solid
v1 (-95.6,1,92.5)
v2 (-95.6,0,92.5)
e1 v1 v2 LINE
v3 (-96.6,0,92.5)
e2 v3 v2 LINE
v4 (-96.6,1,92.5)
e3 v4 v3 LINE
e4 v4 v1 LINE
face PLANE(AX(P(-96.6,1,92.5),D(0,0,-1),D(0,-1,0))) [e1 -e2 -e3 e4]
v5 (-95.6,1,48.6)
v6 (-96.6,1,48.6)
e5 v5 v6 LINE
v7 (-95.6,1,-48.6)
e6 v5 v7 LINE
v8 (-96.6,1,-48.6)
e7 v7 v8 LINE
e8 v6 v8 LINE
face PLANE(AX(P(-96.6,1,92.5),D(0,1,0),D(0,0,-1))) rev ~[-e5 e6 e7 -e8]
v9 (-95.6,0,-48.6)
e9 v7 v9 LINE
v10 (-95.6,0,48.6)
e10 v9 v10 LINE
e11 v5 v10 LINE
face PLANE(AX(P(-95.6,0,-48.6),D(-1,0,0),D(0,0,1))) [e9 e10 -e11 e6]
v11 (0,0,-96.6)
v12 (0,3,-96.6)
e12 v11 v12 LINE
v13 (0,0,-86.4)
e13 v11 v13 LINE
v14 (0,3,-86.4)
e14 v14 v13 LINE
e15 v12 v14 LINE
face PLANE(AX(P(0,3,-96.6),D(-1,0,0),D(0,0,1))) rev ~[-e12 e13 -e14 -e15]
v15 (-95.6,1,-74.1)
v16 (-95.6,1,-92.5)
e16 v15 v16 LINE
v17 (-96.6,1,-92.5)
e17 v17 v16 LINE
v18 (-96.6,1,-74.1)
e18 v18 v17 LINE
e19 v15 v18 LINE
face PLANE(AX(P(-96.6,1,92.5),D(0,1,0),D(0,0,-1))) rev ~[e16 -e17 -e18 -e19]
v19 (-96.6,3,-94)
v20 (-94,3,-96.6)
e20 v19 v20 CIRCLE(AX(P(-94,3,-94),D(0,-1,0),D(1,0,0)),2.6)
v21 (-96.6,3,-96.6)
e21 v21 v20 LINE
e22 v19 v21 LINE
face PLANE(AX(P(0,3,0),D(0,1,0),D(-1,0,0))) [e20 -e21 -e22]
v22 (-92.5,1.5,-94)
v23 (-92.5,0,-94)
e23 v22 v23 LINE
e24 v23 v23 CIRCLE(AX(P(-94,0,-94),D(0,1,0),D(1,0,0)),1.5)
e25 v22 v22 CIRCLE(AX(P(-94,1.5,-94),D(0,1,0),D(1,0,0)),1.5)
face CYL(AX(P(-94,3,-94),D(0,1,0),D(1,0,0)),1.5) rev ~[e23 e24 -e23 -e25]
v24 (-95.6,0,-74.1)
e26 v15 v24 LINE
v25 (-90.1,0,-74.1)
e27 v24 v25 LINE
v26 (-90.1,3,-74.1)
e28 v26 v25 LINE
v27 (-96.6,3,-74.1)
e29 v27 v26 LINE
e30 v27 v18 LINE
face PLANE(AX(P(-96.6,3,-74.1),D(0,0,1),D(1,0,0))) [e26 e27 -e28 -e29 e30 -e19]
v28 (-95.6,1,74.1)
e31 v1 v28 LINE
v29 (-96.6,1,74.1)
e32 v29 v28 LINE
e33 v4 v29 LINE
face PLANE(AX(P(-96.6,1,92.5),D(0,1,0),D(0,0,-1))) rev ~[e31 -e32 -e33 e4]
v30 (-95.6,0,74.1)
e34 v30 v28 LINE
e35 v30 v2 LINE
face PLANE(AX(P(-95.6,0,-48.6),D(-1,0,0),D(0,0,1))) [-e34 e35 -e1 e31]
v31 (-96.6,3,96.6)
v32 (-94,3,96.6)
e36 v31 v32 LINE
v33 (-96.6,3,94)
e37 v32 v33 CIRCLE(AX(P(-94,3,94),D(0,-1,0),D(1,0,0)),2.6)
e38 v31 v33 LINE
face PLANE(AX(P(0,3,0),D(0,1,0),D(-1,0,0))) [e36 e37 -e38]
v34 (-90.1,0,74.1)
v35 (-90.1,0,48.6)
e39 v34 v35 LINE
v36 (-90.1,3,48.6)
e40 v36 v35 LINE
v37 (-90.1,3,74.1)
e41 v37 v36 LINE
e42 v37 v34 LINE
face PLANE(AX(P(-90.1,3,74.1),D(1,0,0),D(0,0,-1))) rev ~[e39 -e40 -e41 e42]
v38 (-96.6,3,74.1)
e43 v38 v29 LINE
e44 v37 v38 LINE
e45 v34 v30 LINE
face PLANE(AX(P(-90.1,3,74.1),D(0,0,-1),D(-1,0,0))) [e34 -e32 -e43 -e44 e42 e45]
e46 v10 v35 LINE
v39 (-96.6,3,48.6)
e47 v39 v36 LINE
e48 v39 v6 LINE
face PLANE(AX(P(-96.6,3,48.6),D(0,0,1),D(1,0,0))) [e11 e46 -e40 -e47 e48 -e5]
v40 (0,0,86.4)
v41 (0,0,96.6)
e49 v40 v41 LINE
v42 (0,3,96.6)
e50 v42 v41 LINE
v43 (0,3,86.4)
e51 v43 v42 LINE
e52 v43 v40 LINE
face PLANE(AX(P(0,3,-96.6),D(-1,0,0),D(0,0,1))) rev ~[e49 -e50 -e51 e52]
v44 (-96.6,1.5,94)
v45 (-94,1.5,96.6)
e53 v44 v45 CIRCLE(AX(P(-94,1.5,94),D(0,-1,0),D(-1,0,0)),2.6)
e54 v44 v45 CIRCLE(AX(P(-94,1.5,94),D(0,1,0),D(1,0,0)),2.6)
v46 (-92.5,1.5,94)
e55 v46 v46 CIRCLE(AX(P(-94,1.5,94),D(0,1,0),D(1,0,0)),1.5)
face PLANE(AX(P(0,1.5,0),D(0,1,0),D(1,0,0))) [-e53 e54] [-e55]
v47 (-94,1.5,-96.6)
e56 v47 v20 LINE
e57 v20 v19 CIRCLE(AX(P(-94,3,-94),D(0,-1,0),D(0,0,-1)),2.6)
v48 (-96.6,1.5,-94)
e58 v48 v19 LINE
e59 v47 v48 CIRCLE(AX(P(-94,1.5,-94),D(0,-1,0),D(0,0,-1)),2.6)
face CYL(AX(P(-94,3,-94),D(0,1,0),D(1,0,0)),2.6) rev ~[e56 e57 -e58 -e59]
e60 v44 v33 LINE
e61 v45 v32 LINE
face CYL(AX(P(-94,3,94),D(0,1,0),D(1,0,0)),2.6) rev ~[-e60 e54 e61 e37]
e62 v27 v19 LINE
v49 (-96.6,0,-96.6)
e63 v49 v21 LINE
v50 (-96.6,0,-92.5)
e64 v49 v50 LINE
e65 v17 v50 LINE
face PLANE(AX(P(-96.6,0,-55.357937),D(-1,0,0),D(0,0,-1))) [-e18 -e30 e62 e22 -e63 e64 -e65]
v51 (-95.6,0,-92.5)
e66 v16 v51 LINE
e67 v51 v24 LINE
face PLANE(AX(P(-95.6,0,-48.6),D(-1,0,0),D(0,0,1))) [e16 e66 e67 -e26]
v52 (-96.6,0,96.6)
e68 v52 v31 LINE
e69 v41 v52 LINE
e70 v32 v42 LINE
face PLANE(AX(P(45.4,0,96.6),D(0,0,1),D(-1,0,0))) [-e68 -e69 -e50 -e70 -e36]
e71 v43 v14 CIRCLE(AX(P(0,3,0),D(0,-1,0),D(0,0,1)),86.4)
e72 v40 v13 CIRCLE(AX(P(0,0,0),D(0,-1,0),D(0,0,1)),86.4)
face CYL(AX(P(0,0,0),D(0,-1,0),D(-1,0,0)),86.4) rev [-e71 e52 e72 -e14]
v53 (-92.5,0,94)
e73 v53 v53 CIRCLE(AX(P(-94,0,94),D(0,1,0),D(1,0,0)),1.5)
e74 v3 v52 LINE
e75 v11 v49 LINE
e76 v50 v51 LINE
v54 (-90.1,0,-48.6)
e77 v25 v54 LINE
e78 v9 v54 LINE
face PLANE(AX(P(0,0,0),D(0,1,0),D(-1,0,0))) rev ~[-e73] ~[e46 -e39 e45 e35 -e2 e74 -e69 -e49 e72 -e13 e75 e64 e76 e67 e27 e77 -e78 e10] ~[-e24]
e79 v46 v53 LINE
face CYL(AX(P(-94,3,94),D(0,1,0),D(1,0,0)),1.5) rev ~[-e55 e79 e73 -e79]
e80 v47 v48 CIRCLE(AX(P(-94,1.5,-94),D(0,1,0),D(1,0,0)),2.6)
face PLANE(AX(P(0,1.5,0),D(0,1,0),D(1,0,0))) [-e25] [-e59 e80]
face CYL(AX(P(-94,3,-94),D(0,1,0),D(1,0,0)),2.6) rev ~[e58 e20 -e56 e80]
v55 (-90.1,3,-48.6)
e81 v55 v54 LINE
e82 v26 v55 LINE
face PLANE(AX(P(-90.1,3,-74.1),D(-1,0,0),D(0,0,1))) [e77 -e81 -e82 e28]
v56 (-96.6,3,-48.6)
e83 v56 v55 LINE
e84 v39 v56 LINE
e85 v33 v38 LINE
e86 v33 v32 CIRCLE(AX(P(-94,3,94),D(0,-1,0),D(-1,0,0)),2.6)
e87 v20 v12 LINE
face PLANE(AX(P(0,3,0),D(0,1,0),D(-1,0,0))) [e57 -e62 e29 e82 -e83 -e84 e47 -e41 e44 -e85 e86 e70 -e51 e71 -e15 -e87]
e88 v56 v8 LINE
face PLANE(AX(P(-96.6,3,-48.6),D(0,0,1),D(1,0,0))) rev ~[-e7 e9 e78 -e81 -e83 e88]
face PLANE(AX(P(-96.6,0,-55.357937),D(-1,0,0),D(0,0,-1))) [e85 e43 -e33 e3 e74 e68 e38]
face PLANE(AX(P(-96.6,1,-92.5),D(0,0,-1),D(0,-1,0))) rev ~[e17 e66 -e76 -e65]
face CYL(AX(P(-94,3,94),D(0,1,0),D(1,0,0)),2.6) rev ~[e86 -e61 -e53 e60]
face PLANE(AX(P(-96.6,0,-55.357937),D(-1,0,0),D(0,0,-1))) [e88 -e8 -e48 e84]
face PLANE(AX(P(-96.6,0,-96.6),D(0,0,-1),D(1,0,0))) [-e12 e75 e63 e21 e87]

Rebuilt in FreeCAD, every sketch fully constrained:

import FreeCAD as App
import Part
import Sketcher
from FreeCAD import Vector


def edges_at(feature, points):
    """Names of the edges that pass closest to the given points."""
    edges = feature.Shape.Edges
    near = lambda p: min(range(len(edges)), key=lambda i: edges[i].distToShape(Part.Vertex(*p))[0])
    return sorted({f"Edge{near(p) + 1}" for p in points})

doc = App.newDocument("Part")
body = doc.addObject("PartDesign::Body", "Body")

# Sketch on XZ plane
sketch1 = body.newObject("Sketcher::SketchObject", "Sketch")
sketch1.AttachmentSupport = (doc.getObject("XZ_Plane"), [""])
sketch1.MapMode = "FlatFace"
sketch1.addGeometry(Part.LineSegment(Vector(-97, -97, 0), Vector(-97, 97, 0)), False)
sketch1.addGeometry(Part.LineSegment(Vector(-97, 97, 0), Vector(45, 97, 0)), False)
sketch1.addGeometry(Part.LineSegment(Vector(45, 97, 0), Vector(97, 45, 0)), False)
sketch1.addGeometry(Part.LineSegment(Vector(97, 45, 0), Vector(97, -97, 0)), False)
sketch1.addGeometry(Part.LineSegment(Vector(97, -97, 0), Vector(-97, -97, 0)), False)
sketch1.addGeometry(Part.Circle(Vector(0, 0, 0), Vector(0, 0, 1), 86), False)
sketch1.addConstraint(Sketcher.Constraint("Coincident", 0, 2, 1, 1))
sketch1.addConstraint(Sketcher.Constraint("Coincident", 1, 2, 2, 1))
sketch1.addConstraint(Sketcher.Constraint("Coincident", 2, 2, 3, 1))
sketch1.addConstraint(Sketcher.Constraint("Coincident", 3, 2, 4, 1))
sketch1.addConstraint(Sketcher.Constraint("Coincident", 4, 2, 0, 1))
sketch1.addConstraint(Sketcher.Constraint("Vertical", 0))
sketch1.addConstraint(Sketcher.Constraint("Horizontal", 1))
sketch1.addConstraint(Sketcher.Constraint("Vertical", 3))
sketch1.addConstraint(Sketcher.Constraint("Horizontal", 4))
sketch1.addConstraint(Sketcher.Constraint("Coincident", 5, 3, -1, 1))
sketch1.addConstraint(Sketcher.Constraint("Symmetric", 0, 2, 3, 2, -1, 1))
sketch1.addConstraint(Sketcher.Constraint("Equal", 4, 0))
sketch1.addConstraint(Sketcher.Constraint("Equal", 1, 3))
sketch1.addConstraint(Sketcher.Constraint("Diameter", 5, 172.8))
sketch1.addConstraint(Sketcher.Constraint("DistanceX", 1, 1, 1, 2, 142.0))
sketch1.addConstraint(Sketcher.Constraint("DistanceX", 4, 2, 4, 1, 193.2))
pad1 = body.newObject("PartDesign::Pad", "Pad")
pad1.Profile = sketch1
pad1.Length = 3
pad1.Reversed = True

# Sketch on XZ plane
sketch2 = body.newObject("Sketcher::SketchObject", "Sketch001")
sketch2.AttachmentSupport = (doc.getObject("XZ_Plane"), [""])
sketch2.MapMode = "FlatFace"
sketch2.AttachmentOffset = App.Placement(Vector(0, 0, -3), App.Rotation())
sketch2.addGeometry(Part.LineSegment(Vector(89, -10, 0), Vector(89, 10, 0)), False)
sketch2.addGeometry(Part.LineSegment(Vector(89, 10, 0), Vector(97, 10, 0)), False)
sketch2.addGeometry(Part.LineSegment(Vector(97, 10, 0), Vector(97, -10, 0)), False)
sketch2.addGeometry(Part.LineSegment(Vector(97, -10, 0), Vector(89, -10, 0)), False)
sketch2.addConstraint(Sketcher.Constraint("Coincident", 0, 2, 1, 1))
sketch2.addConstraint(Sketcher.Constraint("Coincident", 1, 2, 2, 1))
sketch2.addConstraint(Sketcher.Constraint("Coincident", 2, 2, 3, 1))
sketch2.addConstraint(Sketcher.Constraint("Coincident", 3, 2, 0, 1))
sketch2.addConstraint(Sketcher.Constraint("Vertical", 0))
sketch2.addConstraint(Sketcher.Constraint("Horizontal", 1))
sketch2.addConstraint(Sketcher.Constraint("Vertical", 2))
sketch2.addConstraint(Sketcher.Constraint("Horizontal", 3))
sketch2.addConstraint(Sketcher.Constraint("DistanceX", 1, 1, 1, 2, 7.5))
sketch2.addConstraint(Sketcher.Constraint("DistanceY", -1, 1, 0, 2, 10.0))
sketch2.addConstraint(Sketcher.Constraint("DistanceY", 2, 2, -1, 1, 10.0))
sketch2.addConstraint(Sketcher.Constraint("DistanceX", -1, 1, 0, 2, 89.1))
pad2 = body.newObject("PartDesign::Pad", "Pad001")
pad2.Profile = sketch2
pad2.Length = 15
pad2.Reversed = True

# Sketch on XY plane
sketch3 = body.newObject("Sketcher::SketchObject", "Sketch002")
sketch3.AttachmentSupport = (doc.getObject("XY_Plane"), [""])
sketch3.MapMode = "FlatFace"
sketch3.AttachmentOffset = App.Placement(Vector(0, 0, 10), App.Rotation())
sketch3.addGeometry(Part.LineSegment(Vector(94.6, 13, 0), Vector(91.1, 13, 0)), False)
sketch3.addGeometry(Part.LineSegment(Vector(91.1, 13, 0), Vector(91.1, 6, 0)), False)
sketch3.addGeometry(Part.LineSegment(Vector(91.1, 6, 0), Vector(94.6, 6, 0)), False)
sketch3.addGeometry(Part.LineSegment(Vector(94.6, 6, 0), Vector(94.6, 13, 0)), False)
sketch3.addConstraint(Sketcher.Constraint("Coincident", 0, 2, 1, 1))
sketch3.addConstraint(Sketcher.Constraint("Coincident", 1, 2, 2, 1))
sketch3.addConstraint(Sketcher.Constraint("Coincident", 2, 2, 3, 1))
sketch3.addConstraint(Sketcher.Constraint("Coincident", 3, 2, 0, 1))
sketch3.addConstraint(Sketcher.Constraint("Horizontal", 0))
sketch3.addConstraint(Sketcher.Constraint("Vertical", 1))
sketch3.addConstraint(Sketcher.Constraint("Horizontal", 2))
sketch3.addConstraint(Sketcher.Constraint("Vertical", 3))
sketch3.addConstraint(Sketcher.Constraint("DistanceY", 1, 2, 1, 1, 7.0))
sketch3.addConstraint(Sketcher.Constraint("DistanceX", 0, 2, 0, 1, 3.5))
sketch3.addConstraint(Sketcher.Constraint("DistanceY", -1, 1, 0, 2, 13.0))
sketch3.addConstraint(Sketcher.Constraint("DistanceX", -1, 1, 0, 2, 91.1))
pocket1 = body.newObject("PartDesign::Pocket", "Pocket")
pocket1.Profile = sketch3
pocket1.Type = "ThroughAll"
doc.recompute()

fillet = body.newObject("PartDesign::Fillet", "Fillet")
fillet.Base = (pocket1, edges_at(pocket1, [(96.6, 18, 0), (89.1, 18, 0)]))
fillet.Radius = 3.175

# Sketch on XZ plane
sketch4 = body.newObject("Sketcher::SketchObject", "Sketch003")
sketch4.AttachmentSupport = (doc.getObject("XZ_Plane"), [""])
sketch4.MapMode = "FlatFace"
sketch4.AttachmentOffset = App.Placement(Vector(0, 0, -3), App.Rotation())
sketch4.addGeometry(Part.LineSegment(Vector(-90, -74, 0), Vector(-97, -74, 0)), False)
sketch4.addGeometry(Part.LineSegment(Vector(-97, -74, 0), Vector(-97, -49, 0)), False)
sketch4.addGeometry(Part.LineSegment(Vector(-97, -49, 0), Vector(-90, -49, 0)), False)
sketch4.addGeometry(Part.LineSegment(Vector(-90, -49, 0), Vector(-90, -74, 0)), False)
sketch4.addGeometry(Part.LineSegment(Vector(-90, 49, 0), Vector(-97, 49, 0)), False)
sketch4.addGeometry(Part.LineSegment(Vector(-97, 49, 0), Vector(-97, 74, 0)), False)
sketch4.addGeometry(Part.LineSegment(Vector(-97, 74, 0), Vector(-90, 74, 0)), False)
sketch4.addGeometry(Part.LineSegment(Vector(-90, 74, 0), Vector(-90, 49, 0)), False)
sketch4.addConstraint(Sketcher.Constraint("Coincident", 0, 2, 1, 1))
sketch4.addConstraint(Sketcher.Constraint("Coincident", 1, 2, 2, 1))
sketch4.addConstraint(Sketcher.Constraint("Coincident", 2, 2, 3, 1))
sketch4.addConstraint(Sketcher.Constraint("Coincident", 3, 2, 0, 1))
sketch4.addConstraint(Sketcher.Constraint("Coincident", 4, 2, 5, 1))
sketch4.addConstraint(Sketcher.Constraint("Coincident", 5, 2, 6, 1))
sketch4.addConstraint(Sketcher.Constraint("Coincident", 6, 2, 7, 1))
sketch4.addConstraint(Sketcher.Constraint("Coincident", 7, 2, 4, 1))
sketch4.addConstraint(Sketcher.Constraint("Horizontal", 0))
sketch4.addConstraint(Sketcher.Constraint("Vertical", 1))
sketch4.addConstraint(Sketcher.Constraint("Horizontal", 2))
sketch4.addConstraint(Sketcher.Constraint("Vertical", 3))
sketch4.addConstraint(Sketcher.Constraint("Horizontal", 4))
sketch4.addConstraint(Sketcher.Constraint("Vertical", 5))
sketch4.addConstraint(Sketcher.Constraint("Horizontal", 6))
sketch4.addConstraint(Sketcher.Constraint("Vertical", 7))
sketch4.addConstraint(Sketcher.Constraint("Symmetric", 1, 2, 4, 2, -1))
sketch4.addConstraint(Sketcher.Constraint("Symmetric", 3, 2, 6, 2, -1))
sketch4.addConstraint(Sketcher.Constraint("DistanceX", 0, 2, 0, 1, 6.5))
sketch4.addConstraint(Sketcher.Constraint("DistanceY", 1, 1, 1, 2, 25.5))
sketch4.addConstraint(Sketcher.Constraint("DistanceX", 0, 2, -1, 1, 96.6))
sketch4.addConstraint(Sketcher.Constraint("DistanceY", 0, 2, -1, 1, 74.1))
pocket2 = body.newObject("PartDesign::Pocket", "Pocket001")
pocket2.Profile = sketch4
pocket2.Type = "ThroughAll"
pocket2.Reversed = True

# Sketch on XZ plane
sketch5 = body.newObject("Sketcher::SketchObject", "Sketch004")
sketch5.AttachmentSupport = (doc.getObject("XZ_Plane"), [""])
sketch5.MapMode = "FlatFace"
sketch5.AttachmentOffset = App.Placement(Vector(0, 0, -3), App.Rotation())
sketch5.addGeometry(Part.Circle(Vector(-94, -94, 0), Vector(0, 0, 1), 1.5), False)
sketch5.addGeometry(Part.Circle(Vector(94, -94, 0), Vector(0, 0, 1), 1.5), False)
sketch5.addGeometry(Part.Circle(Vector(-94, 94, 0), Vector(0, 0, 1), 1.5), False)
sketch5.addGeometry(Part.Circle(Vector(94, 39.1, 0), Vector(0, 0, 1), 1.5), False)
sketch5.addConstraint(Sketcher.Constraint("Equal", 0, 1))
sketch5.addConstraint(Sketcher.Constraint("Equal", 1, 2))
sketch5.addConstraint(Sketcher.Constraint("Equal", 2, 3))
sketch5.addConstraint(Sketcher.Constraint("Symmetric", 1, 3, 2, 3, -1, 1))
sketch5.addConstraint(Sketcher.Constraint("Symmetric", 0, 3, 1, 3, -2))
sketch5.addConstraint(Sketcher.Constraint("Vertical", 1, 3, 3, 3))
sketch5.addConstraint(Sketcher.Constraint("Diameter", 0, 3.0))
sketch5.addConstraint(Sketcher.Constraint("DistanceX", 0, 3, -1, 1, 94.0))
sketch5.addConstraint(Sketcher.Constraint("DistanceY", 0, 3, -1, 1, 94.0))
sketch5.addConstraint(Sketcher.Constraint("DistanceY", -1, 1, 3, 3, 39.085))
pocket3 = body.newObject("PartDesign::Pocket", "Pocket002")
pocket3.Profile = sketch5
pocket3.Length = 10
pocket3.Reversed = True

# Sketch on XZ plane
sketch6 = body.newObject("Sketcher::SketchObject", "Sketch005")
sketch6.AttachmentSupport = (doc.getObject("XZ_Plane"), [""])
sketch6.MapMode = "FlatFace"
sketch6.AttachmentOffset = App.Placement(Vector(0, 0, -3), App.Rotation())
sketch6.addGeometry(Part.Circle(Vector(-94, -94, 0), Vector(0, 0, 1), 2.6), False)
sketch6.addGeometry(Part.Circle(Vector(94, -94, 0), Vector(0, 0, 1), 2.6), False)
sketch6.addGeometry(Part.Circle(Vector(-94, 94, 0), Vector(0, 0, 1), 2.6), False)
sketch6.addGeometry(Part.Circle(Vector(94, 39.1, 0), Vector(0, 0, 1), 2.6), False)
sketch6.addConstraint(Sketcher.Constraint("Equal", 0, 1))
sketch6.addConstraint(Sketcher.Constraint("Equal", 1, 2))
sketch6.addConstraint(Sketcher.Constraint("Equal", 2, 3))
sketch6.addConstraint(Sketcher.Constraint("Symmetric", 1, 3, 2, 3, -1, 1))
sketch6.addConstraint(Sketcher.Constraint("Symmetric", 0, 3, 1, 3, -2))
sketch6.addConstraint(Sketcher.Constraint("Vertical", 1, 3, 3, 3))
sketch6.addConstraint(Sketcher.Constraint("Diameter", 0, 5.2))
sketch6.addConstraint(Sketcher.Constraint("DistanceX", 0, 3, -1, 1, 94.0))
sketch6.addConstraint(Sketcher.Constraint("DistanceY", 0, 3, -1, 1, 94.0))
sketch6.addConstraint(Sketcher.Constraint("DistanceY", -1, 1, 3, 3, 39.085))
pocket4 = body.newObject("PartDesign::Pocket", "Pocket003")
pocket4.Profile = sketch6
pocket4.Length = 1.5
pocket4.Reversed = True

# Sketch on YZ plane
sketch7 = body.newObject("Sketcher::SketchObject", "Sketch006")
sketch7.AttachmentSupport = (doc.getObject("YZ_Plane"), [""])
sketch7.MapMode = "FlatFace"
sketch7.addGeometry(Part.LineSegment(Vector(-16, 112, 0), Vector(39, 112, 0)), False)
sketch7.addGeometry(Part.LineSegment(Vector(39, 112, 0), Vector(39, -114, 0)), False)
sketch7.addGeometry(Part.LineSegment(Vector(39, -114, 0), Vector(-16, -114, 0)), False)
sketch7.addGeometry(Part.LineSegment(Vector(-16, -114, 0), Vector(-16, 112, 0)), False)
sketch7.addConstraint(Sketcher.Constraint("Coincident", 0, 2, 1, 1))
sketch7.addConstraint(Sketcher.Constraint("Coincident", 1, 2, 2, 1))
sketch7.addConstraint(Sketcher.Constraint("Coincident", 2, 2, 3, 1))
sketch7.addConstraint(Sketcher.Constraint("Coincident", 3, 2, 0, 1))
sketch7.addConstraint(Sketcher.Constraint("Horizontal", 0))
sketch7.addConstraint(Sketcher.Constraint("Vertical", 1))
sketch7.addConstraint(Sketcher.Constraint("Horizontal", 2))
sketch7.addConstraint(Sketcher.Constraint("Vertical", 3))
sketch7.addConstraint(Sketcher.Constraint("DistanceY", 1, 2, 1, 1, 226.42))
sketch7.addConstraint(Sketcher.Constraint("DistanceX", 0, 1, 0, 2, 55.242))
sketch7.addConstraint(Sketcher.Constraint("DistanceX", -1, 1, 0, 2, 39.251))
sketch7.addConstraint(Sketcher.Constraint("DistanceY", -1, 1, 0, 2, 112.3015))
pocket5 = body.newObject("PartDesign::Pocket", "Pocket004")
pocket5.Profile = sketch7
pocket5.Type = "ThroughAll"
pocket5.Reversed = True

# Sketch on YZ plane
sketch8 = body.newObject("Sketcher::SketchObject", "Sketch007")
sketch8.AttachmentSupport = (doc.getObject("YZ_Plane"), [""])
sketch8.MapMode = "FlatFace"
sketch8.AttachmentOffset = App.Placement(Vector(0, 0, -96.6), App.Rotation())
sketch8.addGeometry(Part.LineSegment(Vector(0, 92.5, 0), Vector(1, 92.5, 0)), False)
sketch8.addGeometry(Part.LineSegment(Vector(1, 92.5, 0), Vector(1, -92.5, 0)), False)
sketch8.addGeometry(Part.LineSegment(Vector(1, -92.5, 0), Vector(0, -92.5, 0)), False)
sketch8.addGeometry(Part.LineSegment(Vector(0, -92.5, 0), Vector(0, 92.5, 0)), False)
sketch8.addConstraint(Sketcher.Constraint("Coincident", 0, 2, 1, 1))
sketch8.addConstraint(Sketcher.Constraint("Coincident", 1, 2, 2, 1))
sketch8.addConstraint(Sketcher.Constraint("Coincident", 2, 2, 3, 1))
sketch8.addConstraint(Sketcher.Constraint("Coincident", 3, 2, 0, 1))
sketch8.addConstraint(Sketcher.Constraint("Horizontal", 0))
sketch8.addConstraint(Sketcher.Constraint("Vertical", 1))
sketch8.addConstraint(Sketcher.Constraint("Horizontal", 2))
sketch8.addConstraint(Sketcher.Constraint("Vertical", 3))
sketch8.addConstraint(Sketcher.Constraint("Symmetric", 2, 2, 3, 2, -1, 1))
sketch8.addConstraint(Sketcher.Constraint("DistanceX", 0, 1, 0, 2, 1.0))
sketch8.addConstraint(Sketcher.Constraint("DistanceY", 1, 2, 1, 1, 185.0))
pocket6 = body.newObject("PartDesign::Pocket", "Pocket005")
pocket6.Profile = sketch8
pocket6.Length = 1
pocket6.Reversed = True

doc.recompute()
